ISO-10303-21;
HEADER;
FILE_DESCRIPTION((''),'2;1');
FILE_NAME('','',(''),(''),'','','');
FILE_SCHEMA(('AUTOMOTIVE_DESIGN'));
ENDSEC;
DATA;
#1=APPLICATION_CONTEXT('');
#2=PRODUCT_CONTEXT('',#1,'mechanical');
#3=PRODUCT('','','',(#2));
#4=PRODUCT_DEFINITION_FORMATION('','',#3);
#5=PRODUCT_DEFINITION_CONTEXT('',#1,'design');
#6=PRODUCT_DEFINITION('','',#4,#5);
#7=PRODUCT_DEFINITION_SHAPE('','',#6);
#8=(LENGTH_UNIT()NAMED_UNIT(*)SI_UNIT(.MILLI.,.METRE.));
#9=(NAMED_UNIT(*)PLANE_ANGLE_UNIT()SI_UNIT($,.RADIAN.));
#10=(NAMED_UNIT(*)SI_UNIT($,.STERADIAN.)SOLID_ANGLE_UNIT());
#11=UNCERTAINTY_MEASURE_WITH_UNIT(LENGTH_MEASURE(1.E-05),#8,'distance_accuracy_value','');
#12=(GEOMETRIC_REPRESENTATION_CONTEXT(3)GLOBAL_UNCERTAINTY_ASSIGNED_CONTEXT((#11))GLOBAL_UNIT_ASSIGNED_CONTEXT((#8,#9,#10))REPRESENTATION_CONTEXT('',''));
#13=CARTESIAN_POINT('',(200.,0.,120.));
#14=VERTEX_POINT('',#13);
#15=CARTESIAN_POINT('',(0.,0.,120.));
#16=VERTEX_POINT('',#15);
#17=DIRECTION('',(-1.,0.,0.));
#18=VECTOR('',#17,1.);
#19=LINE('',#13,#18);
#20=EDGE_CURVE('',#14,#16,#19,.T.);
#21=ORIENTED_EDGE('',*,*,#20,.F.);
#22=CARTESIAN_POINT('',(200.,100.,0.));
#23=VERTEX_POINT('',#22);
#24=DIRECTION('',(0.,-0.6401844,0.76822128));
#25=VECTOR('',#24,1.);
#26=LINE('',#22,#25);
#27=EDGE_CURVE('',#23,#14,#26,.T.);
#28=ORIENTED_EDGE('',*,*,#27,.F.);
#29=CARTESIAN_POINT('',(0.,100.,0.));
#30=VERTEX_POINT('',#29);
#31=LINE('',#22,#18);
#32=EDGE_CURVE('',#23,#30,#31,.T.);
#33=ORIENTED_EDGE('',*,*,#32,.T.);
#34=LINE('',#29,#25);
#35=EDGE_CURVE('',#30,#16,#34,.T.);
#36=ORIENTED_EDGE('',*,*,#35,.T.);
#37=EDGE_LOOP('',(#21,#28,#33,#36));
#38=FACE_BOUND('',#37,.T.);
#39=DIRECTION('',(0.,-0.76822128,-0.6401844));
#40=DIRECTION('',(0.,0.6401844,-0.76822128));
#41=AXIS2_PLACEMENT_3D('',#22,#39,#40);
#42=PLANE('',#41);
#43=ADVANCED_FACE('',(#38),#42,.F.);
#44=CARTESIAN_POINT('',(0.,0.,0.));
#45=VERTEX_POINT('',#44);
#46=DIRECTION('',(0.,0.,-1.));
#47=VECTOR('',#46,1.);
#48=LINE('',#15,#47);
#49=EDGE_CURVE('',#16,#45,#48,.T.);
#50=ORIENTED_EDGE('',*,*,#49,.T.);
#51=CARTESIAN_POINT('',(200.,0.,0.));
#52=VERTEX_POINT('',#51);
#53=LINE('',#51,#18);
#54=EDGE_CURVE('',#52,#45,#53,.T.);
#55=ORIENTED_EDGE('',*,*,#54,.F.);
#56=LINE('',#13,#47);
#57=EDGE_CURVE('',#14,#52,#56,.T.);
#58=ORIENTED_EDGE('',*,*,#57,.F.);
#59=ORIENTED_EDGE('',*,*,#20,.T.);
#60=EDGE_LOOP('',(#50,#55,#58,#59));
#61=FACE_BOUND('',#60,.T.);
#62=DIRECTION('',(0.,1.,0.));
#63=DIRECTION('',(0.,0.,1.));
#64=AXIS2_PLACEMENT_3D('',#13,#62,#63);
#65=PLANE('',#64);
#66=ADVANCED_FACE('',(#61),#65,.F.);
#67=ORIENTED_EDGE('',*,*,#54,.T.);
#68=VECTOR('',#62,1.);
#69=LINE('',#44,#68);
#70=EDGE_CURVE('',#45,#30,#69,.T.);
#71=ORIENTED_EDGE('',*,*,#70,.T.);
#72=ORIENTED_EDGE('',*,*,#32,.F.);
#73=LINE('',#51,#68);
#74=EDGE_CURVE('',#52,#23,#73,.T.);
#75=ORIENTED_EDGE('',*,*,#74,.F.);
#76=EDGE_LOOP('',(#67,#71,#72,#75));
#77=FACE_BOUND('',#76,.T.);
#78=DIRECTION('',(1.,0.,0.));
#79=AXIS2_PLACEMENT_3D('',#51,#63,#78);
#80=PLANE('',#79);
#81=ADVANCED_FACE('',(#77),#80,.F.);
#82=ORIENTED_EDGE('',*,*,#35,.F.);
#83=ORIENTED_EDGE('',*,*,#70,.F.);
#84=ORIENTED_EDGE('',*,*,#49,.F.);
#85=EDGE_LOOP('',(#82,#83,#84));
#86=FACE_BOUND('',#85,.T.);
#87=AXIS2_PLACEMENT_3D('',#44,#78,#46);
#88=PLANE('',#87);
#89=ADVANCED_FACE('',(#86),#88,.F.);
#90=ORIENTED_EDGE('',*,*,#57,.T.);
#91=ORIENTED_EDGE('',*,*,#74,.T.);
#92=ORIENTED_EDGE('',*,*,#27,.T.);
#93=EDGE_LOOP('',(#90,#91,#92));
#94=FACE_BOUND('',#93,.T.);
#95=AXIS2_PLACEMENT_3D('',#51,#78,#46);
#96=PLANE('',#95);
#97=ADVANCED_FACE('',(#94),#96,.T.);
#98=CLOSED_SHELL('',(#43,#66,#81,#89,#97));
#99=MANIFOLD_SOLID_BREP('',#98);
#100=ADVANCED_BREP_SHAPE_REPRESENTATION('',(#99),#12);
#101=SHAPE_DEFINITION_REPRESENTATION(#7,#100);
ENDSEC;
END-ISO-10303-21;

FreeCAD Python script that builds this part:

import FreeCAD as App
import Part
import Sketcher

doc = App.newDocument("Part")
params = doc.addObject("Spreadsheet::Sheet", "Params")
for row, (alias, value) in enumerate([
    ("sketch1_width", "100 mm"),
    ("sketch1_height", "120 mm"),
    ("pad1_length", "200 mm"),
], start=1):
    params.set(f"A{row}", alias)
    params.set(f"B{row}", "=" + value)
    params.setAlias(f"B{row}", alias)

body = doc.addObject("PartDesign::Body", "Body")

sketch1 = body.newObject("Sketcher::SketchObject", "Sketch")
sketch1.AttachmentSupport = (doc.getObject("YZ_Plane"), [""])
sketch1.MapMode = "FlatFace"
sketch1.addGeometry([
    Part.LineSegment(App.Vector(0, 0, 0), App.Vector(100, 0, 0)),
    Part.LineSegment(App.Vector(100, 0, 0), App.Vector(0, 120, 0)),
    Part.LineSegment(App.Vector(0, 120, 0), App.Vector(0, 0, 0)),
], False)
sketch1.addConstraint([
    Sketcher.Constraint("Coincident", 0, 2, 1, 1),
    Sketcher.Constraint("Coincident", 1, 2, 2, 1),
    Sketcher.Constraint("Coincident", 2, 2, 0, 1),
    Sketcher.Constraint("Horizontal", 0),
    Sketcher.Constraint("Vertical", 2),
    Sketcher.Constraint("Coincident", 2, 2, -1, 1),
    Sketcher.Constraint("DistanceX", 0, 1, 0, 2, 100.0),
    Sketcher.Constraint("DistanceY", 2, 2, 2, 1, 120.0),
])
sketch1.setExpression("Constraints[6]", "Params.sketch1_width")
sketch1.setExpression("Constraints[7]", "Params.sketch1_height")
pad1 = body.newObject("PartDesign::Pad", "Pad")
pad1.Profile = sketch1
pad1.setExpression("Length", "Params.pad1_length")

doc.recompute()
